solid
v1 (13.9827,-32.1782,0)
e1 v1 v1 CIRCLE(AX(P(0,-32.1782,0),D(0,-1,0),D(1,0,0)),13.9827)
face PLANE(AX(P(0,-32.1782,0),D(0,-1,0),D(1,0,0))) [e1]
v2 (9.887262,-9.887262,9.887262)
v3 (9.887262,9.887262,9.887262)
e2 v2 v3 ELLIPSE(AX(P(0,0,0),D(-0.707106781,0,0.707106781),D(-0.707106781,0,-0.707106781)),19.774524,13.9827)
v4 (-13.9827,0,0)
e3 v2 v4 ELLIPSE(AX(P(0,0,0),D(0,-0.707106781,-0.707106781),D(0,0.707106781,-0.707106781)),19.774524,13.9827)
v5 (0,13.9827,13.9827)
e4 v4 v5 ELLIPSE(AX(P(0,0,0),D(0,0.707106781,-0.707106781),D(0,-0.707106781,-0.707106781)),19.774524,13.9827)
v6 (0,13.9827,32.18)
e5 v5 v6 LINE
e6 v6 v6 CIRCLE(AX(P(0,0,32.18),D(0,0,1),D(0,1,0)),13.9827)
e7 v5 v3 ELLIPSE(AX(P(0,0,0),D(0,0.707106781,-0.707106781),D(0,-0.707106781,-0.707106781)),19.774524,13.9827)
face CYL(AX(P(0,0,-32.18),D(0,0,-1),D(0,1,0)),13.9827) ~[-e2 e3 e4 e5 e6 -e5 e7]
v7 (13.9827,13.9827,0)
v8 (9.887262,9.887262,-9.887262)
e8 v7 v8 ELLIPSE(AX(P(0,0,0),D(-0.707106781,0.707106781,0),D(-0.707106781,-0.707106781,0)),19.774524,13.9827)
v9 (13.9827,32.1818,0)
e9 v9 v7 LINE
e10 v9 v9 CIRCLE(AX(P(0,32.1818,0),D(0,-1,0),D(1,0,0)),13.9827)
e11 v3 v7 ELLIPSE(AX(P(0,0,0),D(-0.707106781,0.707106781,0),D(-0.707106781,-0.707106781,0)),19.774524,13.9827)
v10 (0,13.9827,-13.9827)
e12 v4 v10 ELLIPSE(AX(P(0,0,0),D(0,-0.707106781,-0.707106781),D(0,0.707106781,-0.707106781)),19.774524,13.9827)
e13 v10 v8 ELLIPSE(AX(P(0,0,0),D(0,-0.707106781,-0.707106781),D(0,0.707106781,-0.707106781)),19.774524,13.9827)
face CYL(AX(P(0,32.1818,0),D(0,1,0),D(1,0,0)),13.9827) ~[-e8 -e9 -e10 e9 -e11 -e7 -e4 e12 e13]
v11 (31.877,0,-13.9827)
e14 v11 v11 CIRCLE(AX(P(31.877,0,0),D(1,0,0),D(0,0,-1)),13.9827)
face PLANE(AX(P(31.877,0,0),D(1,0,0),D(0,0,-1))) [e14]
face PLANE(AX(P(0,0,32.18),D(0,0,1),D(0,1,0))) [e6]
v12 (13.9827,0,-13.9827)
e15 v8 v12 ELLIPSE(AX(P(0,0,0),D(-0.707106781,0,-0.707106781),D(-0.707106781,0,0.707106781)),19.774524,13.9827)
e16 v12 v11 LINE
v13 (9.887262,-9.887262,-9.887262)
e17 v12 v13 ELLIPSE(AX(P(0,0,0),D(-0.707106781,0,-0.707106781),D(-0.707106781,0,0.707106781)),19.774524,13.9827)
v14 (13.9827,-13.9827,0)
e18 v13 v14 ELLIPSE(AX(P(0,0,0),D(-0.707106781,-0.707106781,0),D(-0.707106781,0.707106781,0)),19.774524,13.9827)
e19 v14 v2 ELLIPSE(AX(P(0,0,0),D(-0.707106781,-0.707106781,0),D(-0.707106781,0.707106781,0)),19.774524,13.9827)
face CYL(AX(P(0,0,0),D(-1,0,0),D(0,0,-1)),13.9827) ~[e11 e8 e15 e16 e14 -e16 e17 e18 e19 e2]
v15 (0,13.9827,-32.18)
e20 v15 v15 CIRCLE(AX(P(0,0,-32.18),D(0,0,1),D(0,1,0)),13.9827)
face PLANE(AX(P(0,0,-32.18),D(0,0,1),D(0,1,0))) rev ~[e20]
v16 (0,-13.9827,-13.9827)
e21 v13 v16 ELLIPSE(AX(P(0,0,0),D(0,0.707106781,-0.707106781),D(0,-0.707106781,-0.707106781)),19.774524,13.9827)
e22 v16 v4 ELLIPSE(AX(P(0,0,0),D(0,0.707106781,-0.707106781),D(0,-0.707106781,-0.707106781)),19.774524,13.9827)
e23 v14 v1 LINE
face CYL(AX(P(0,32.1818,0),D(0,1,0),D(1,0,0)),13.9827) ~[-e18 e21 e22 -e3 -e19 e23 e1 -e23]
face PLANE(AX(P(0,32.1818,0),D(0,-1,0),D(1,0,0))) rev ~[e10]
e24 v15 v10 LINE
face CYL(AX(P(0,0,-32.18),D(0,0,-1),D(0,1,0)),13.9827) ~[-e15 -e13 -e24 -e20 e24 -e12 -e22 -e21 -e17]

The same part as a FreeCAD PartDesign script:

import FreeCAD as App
import Part
import Sketcher

V = App.Vector
Q = App.Units.Quantity

doc = App.newDocument("Part")
body = doc.addObject("PartDesign::Body", "Body")

# Sketch on XY plane
sketch1 = doc.addObject("Sketcher::SketchObject", "Sketch")
body.addObject(sketch1)
sketch1.AttachmentSupport = (doc.XY_Plane, [""])
sketch1.MapMode = "FlatFace"
sketch1.AttachmentOffset = App.Placement(V(0, 0, -32.18), App.Rotation())
sketch1.addGeometry(Part.Circle(V(0, 0, 0), V(0, 0, 1), 14), False)
sketch1.addConstraint([
    Sketcher.Constraint("Coincident", 0, 3, -1, 1),
    Sketcher.Constraint("Diameter", 0, Q("1.101 in")),
])
pad1 = doc.addObject("PartDesign::Pad", "Pad")
body.addObject(pad1)
pad1.Profile = sketch1
pad1.Length = 64.36
body2 = doc.addObject("PartDesign::Body", "Body001")

# Sketch on XZ plane
sketch2 = doc.addObject("Sketcher::SketchObject", "Sketch001")
body2.addObject(sketch2)
sketch2.AttachmentSupport = (doc.getObject("XZ_Plane001"), [""])
sketch2.MapMode = "FlatFace"
sketch2.AttachmentOffset = App.Placement(V(0, 0, -1.267 * 25.4), App.Rotation())
sketch2.addGeometry(Part.Circle(V(0, 0, 0), V(0, 0, 1), 14), False)
sketch2.addConstraint([
    Sketcher.Constraint("Coincident", 0, 3, -1, 1),
    Sketcher.Constraint("Diameter", 0, Q("1.101 in")),
])
pad2 = doc.addObject("PartDesign::Pad", "Pad001")
body2.addObject(pad2)
pad2.Profile = sketch2
pad2.Length = 64.36
body3 = doc.addObject("PartDesign::Body", "Body002")

# Sketch on YZ plane
sketch3 = doc.addObject("Sketcher::SketchObject", "Sketch002")
body3.addObject(sketch3)
sketch3.AttachmentSupport = (doc.getObject("YZ_Plane002"), [""])
sketch3.MapMode = "FlatFace"
sketch3.addGeometry(Part.Circle(V(0, 0, 0), V(0, 0, 1), 14), False)
sketch3.addConstraint([
    Sketcher.Constraint("Coincident", 0, 3, -1, 1),
    Sketcher.Constraint("Diameter", 0, Q("1.101 in")),
])
pad3 = doc.addObject("PartDesign::Pad", "Pad002")
body3.addObject(pad3)
pad3.Profile = sketch3
pad3.Length = Q("1.255 in")
doc.recompute()

boolean = doc.addObject("PartDesign::Boolean", "Boolean")
body3.addObject(boolean)
boolean.Type = "Fuse"
boolean.addObjects([body])
doc.recompute()

boolean2 = doc.addObject("PartDesign::Boolean", "Boolean001")
body3.addObject(boolean2)
boolean2.Type = "Fuse"
boolean2.addObjects([body2])

doc.recompute()
